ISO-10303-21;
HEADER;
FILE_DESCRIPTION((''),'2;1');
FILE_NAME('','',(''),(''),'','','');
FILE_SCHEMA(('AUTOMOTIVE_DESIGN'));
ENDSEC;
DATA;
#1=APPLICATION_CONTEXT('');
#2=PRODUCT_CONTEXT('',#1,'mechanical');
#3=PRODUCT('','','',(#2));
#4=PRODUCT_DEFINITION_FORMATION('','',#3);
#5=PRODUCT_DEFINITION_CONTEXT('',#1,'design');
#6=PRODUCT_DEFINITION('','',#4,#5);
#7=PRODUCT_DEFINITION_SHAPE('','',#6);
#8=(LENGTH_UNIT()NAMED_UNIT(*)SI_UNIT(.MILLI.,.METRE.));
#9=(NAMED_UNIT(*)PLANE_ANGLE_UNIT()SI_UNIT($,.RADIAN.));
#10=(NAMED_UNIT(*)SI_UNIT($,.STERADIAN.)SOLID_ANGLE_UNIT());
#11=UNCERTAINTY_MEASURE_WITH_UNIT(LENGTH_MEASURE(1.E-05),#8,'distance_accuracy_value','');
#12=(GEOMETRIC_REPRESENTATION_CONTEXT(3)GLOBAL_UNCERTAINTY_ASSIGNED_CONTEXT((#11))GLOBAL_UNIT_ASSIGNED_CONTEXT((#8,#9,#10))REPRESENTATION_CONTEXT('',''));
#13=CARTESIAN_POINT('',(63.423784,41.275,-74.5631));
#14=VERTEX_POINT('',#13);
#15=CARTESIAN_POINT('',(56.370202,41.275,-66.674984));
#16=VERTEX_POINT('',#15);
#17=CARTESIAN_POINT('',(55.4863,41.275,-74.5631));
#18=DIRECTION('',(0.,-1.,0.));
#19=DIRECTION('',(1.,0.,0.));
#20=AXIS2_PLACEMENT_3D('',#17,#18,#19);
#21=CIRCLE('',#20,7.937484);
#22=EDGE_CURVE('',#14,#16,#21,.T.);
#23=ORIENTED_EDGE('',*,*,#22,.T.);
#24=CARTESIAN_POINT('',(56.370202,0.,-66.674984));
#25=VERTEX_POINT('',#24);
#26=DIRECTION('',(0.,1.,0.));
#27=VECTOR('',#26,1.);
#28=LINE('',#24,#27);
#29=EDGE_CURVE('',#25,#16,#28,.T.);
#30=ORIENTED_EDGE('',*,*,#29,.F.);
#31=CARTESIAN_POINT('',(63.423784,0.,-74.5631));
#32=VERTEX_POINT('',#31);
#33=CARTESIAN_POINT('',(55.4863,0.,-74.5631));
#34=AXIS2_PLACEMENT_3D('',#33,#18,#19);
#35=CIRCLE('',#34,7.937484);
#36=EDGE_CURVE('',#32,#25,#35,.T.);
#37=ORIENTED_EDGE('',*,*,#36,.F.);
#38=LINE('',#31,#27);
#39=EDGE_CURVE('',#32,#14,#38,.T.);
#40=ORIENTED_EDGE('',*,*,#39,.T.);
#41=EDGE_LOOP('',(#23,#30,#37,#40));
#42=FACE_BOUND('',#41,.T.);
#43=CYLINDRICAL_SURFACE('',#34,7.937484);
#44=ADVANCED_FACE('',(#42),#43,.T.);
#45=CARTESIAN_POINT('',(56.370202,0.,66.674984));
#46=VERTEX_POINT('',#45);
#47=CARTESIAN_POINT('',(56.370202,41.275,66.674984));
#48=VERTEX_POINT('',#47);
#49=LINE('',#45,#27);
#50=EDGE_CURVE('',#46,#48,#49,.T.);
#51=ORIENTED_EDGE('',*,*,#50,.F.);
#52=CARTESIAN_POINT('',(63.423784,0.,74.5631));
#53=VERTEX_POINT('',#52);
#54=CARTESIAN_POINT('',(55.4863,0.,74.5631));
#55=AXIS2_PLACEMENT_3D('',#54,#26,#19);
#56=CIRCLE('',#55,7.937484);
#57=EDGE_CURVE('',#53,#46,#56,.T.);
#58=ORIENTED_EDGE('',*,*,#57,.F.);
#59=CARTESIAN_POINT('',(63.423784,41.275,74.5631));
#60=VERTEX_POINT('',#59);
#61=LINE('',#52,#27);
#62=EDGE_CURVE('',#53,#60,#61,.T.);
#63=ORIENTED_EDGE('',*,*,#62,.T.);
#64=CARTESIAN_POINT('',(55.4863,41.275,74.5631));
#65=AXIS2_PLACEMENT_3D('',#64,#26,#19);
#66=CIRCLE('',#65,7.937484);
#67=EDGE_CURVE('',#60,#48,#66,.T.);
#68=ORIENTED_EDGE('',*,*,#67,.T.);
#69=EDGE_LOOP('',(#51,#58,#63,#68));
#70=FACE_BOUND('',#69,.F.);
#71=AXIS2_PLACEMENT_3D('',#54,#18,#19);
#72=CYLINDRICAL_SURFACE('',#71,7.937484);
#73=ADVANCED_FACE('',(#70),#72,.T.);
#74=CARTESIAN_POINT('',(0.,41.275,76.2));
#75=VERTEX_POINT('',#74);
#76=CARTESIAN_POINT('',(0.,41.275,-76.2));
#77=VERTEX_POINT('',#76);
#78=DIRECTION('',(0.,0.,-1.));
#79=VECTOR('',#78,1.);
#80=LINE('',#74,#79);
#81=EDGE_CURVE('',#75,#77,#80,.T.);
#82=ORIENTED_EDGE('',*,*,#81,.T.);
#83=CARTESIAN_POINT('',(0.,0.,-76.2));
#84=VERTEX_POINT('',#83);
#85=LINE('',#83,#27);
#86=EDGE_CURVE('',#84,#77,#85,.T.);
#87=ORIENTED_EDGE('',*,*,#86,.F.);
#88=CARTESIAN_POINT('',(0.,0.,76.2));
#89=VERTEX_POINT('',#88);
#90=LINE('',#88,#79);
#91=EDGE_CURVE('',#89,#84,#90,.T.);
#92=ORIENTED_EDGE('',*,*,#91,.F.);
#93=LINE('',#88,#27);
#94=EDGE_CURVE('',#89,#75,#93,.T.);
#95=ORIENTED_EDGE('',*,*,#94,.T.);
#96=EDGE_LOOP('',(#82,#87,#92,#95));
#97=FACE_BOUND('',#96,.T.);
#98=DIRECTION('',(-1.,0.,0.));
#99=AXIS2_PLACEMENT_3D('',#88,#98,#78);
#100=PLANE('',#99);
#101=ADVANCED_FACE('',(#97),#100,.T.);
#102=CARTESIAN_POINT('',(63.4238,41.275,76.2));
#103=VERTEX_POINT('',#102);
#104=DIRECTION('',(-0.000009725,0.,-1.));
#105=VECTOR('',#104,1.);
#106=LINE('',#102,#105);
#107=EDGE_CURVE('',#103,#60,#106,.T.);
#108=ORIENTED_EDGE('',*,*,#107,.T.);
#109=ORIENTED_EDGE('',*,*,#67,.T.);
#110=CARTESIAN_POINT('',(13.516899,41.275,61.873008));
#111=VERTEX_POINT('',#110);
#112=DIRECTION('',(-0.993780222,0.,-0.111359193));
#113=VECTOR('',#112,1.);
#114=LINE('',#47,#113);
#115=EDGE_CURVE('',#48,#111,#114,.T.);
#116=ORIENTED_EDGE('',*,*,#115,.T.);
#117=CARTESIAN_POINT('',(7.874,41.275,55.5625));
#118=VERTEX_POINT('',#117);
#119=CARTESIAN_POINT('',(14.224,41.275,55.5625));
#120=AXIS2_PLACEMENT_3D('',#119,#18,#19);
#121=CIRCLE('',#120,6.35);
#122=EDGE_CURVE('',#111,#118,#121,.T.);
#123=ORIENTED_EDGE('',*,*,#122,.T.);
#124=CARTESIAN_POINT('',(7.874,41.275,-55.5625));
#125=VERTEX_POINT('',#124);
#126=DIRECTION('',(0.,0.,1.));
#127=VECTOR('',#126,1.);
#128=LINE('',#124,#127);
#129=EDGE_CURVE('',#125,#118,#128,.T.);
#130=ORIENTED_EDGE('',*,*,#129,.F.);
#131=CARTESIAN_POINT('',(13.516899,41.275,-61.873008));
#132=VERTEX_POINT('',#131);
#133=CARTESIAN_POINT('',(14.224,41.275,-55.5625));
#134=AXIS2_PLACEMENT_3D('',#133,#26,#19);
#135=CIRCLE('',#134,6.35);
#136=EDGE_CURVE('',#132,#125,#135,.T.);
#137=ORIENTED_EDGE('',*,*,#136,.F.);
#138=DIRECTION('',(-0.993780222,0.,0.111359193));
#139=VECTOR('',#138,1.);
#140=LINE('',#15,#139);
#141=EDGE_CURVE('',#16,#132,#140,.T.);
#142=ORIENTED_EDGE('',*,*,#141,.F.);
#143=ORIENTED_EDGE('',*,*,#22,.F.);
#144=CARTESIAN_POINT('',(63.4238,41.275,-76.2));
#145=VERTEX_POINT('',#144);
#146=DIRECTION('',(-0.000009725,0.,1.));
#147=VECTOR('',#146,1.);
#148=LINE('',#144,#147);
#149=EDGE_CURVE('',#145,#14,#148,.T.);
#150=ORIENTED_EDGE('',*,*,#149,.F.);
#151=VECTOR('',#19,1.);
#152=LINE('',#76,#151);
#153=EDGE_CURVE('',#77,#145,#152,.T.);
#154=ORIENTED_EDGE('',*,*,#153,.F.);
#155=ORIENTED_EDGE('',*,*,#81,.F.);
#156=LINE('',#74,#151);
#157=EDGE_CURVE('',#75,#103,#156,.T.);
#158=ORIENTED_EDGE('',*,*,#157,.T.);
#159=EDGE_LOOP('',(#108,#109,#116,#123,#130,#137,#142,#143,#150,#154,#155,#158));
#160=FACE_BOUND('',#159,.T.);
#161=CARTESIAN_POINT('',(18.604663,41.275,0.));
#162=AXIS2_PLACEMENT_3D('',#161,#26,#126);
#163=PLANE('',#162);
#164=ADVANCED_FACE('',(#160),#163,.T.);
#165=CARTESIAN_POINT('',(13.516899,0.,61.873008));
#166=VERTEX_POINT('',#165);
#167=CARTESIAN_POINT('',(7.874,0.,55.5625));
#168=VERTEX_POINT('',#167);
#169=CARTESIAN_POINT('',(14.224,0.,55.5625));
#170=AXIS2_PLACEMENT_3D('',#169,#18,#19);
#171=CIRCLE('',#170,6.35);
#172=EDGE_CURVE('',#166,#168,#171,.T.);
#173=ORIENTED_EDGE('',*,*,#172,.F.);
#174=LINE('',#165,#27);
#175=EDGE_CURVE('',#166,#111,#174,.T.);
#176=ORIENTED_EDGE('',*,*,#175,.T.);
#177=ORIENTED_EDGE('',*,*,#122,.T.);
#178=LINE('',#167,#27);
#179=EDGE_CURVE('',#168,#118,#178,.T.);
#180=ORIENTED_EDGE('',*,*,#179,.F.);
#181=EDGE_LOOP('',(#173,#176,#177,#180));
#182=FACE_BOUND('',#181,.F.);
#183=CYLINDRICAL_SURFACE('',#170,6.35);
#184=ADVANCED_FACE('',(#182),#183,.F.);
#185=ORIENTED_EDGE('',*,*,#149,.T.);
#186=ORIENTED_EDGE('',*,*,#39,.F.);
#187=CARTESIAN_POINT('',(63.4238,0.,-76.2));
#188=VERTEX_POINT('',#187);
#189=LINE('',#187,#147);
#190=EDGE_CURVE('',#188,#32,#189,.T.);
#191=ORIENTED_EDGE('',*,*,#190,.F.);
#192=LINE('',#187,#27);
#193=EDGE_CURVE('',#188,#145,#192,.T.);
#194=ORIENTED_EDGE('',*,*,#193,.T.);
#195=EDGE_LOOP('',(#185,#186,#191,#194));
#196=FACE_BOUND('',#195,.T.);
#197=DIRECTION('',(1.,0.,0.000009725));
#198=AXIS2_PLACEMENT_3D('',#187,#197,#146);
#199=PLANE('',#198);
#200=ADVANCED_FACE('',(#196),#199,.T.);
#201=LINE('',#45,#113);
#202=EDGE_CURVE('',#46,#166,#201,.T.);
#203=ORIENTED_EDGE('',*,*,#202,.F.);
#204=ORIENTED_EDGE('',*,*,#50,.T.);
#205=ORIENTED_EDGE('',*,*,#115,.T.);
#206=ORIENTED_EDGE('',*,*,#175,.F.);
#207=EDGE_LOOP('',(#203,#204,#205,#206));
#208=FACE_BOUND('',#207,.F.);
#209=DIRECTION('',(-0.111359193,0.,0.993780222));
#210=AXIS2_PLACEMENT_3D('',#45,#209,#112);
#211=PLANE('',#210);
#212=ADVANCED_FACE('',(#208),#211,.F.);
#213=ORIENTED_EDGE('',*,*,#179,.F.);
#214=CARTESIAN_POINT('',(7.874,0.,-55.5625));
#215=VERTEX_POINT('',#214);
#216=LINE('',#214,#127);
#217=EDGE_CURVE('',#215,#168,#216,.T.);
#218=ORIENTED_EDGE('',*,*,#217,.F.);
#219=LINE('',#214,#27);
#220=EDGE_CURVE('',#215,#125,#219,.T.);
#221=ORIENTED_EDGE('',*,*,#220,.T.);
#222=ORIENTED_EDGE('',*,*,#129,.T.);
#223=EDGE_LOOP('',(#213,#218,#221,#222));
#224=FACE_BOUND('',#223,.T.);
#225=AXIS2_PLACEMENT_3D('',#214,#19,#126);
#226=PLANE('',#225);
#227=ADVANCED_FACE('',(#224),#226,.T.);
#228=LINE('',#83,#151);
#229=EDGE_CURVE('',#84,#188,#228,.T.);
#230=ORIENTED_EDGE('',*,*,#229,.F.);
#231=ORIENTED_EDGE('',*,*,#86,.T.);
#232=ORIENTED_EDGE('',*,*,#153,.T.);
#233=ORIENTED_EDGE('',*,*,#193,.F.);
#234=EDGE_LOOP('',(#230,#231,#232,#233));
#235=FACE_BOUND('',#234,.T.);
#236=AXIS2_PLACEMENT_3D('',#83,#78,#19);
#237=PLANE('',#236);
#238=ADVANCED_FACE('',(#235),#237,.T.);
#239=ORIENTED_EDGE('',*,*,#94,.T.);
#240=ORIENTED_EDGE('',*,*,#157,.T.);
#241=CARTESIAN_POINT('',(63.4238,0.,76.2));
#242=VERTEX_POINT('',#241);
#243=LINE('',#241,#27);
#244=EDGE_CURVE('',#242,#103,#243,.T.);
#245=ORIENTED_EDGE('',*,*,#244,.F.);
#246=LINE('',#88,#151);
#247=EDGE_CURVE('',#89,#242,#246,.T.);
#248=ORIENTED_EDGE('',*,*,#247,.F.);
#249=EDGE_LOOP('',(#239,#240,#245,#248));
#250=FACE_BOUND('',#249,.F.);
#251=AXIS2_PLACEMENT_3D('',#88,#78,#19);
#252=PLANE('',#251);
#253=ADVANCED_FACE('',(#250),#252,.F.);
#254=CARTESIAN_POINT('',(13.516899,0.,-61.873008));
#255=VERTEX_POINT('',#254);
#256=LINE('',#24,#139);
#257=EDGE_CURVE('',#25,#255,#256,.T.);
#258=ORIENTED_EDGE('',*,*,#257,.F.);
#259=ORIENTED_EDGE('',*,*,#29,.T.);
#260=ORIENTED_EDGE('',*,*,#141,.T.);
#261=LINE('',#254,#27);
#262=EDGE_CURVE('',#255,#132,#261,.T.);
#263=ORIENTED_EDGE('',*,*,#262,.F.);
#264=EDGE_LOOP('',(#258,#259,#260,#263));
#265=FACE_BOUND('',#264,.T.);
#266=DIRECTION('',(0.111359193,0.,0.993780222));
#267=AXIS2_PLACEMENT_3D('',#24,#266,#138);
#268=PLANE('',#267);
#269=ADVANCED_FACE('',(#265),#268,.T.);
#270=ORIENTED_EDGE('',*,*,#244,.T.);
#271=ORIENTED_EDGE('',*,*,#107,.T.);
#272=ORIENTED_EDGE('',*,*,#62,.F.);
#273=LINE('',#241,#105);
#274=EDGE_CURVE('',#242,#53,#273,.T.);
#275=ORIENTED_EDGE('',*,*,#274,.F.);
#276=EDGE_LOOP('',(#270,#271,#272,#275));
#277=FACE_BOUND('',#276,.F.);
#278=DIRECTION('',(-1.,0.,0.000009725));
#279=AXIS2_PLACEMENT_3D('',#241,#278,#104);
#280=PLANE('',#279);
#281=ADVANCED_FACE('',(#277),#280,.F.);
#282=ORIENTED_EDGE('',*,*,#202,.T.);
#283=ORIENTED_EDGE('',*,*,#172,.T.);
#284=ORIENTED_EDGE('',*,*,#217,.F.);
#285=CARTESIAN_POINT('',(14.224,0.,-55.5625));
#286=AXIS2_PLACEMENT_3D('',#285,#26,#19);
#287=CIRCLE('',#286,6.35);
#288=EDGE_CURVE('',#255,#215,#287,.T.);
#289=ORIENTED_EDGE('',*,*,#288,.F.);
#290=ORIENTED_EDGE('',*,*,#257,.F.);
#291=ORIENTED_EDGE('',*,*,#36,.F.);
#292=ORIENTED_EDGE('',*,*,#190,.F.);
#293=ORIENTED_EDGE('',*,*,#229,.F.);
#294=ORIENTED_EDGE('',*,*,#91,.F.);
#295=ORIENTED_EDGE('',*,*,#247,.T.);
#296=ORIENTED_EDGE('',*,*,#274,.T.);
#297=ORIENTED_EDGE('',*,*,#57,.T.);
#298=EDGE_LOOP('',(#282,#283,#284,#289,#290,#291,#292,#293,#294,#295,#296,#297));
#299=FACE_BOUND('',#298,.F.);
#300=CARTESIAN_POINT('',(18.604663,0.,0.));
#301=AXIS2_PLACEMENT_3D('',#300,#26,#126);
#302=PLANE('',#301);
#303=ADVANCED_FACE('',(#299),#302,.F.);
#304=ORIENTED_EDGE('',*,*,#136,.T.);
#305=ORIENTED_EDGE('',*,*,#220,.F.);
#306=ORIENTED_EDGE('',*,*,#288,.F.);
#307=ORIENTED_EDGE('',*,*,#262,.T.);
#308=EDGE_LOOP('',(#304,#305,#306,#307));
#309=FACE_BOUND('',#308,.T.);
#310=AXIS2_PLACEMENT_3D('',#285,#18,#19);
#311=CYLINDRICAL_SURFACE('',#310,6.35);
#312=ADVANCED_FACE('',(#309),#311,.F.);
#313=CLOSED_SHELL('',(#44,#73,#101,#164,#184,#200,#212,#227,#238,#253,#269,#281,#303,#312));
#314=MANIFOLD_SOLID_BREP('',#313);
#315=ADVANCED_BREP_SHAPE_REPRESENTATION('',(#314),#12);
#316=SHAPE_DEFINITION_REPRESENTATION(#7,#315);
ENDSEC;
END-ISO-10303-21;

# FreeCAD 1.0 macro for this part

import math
import FreeCAD as App
import Part
import Sketcher

V = App.Vector
Q = App.Units.Quantity

doc = App.newDocument("Part")
body = doc.addObject("PartDesign::Body", "Body")

# Sketch on XZ plane
sketch1 = body.newObject("Sketcher::SketchObject", "Sketch")
sketch1.AttachmentSupport = (doc.getObject("XZ_Plane"), [""])
sketch1.MapMode = "FlatFace"
sketch1.addGeometry([
    Part.LineSegment(V(63.4, 76.2, 0), V(0, 76.2, 0)),  # 0
    Part.LineSegment(V(0, 76.2, 0), V(0, -76.2, 0)),  # 1
    Part.LineSegment(V(0, -76.2, 0), V(63.4, -76.2, 0)),  # 2
    Part.LineSegment(V(63.4, -76.2, 0), V(63.4, -74.6, 0)),  # 3
    Part.ArcOfCircle(Part.Circle(V(55.5, -74.6, 0), V(0, 0, 1), 7.9), math.radians(0), math.radians(84)),  # 4
    Part.LineSegment(V(56.4, -66.7, 0), V(13.5, -61.9, 0)),  # 5
    Part.ArcOfCircle(Part.Circle(V(14.2, -55.6, 0), V(0, 0, 1), 6.3), math.radians(180), math.radians(264)),  # 6
    Part.LineSegment(V(7.9, -55.6, 0), V(7.9, 55.6, 0)),  # 7
    Part.ArcOfCircle(Part.Circle(V(14.2, 55.6, 0), V(0, 0, 1), 6.3), math.radians(96), math.radians(180)),  # 8
    Part.LineSegment(V(13.5, 61.9, 0), V(56.4, 66.7, 0)),  # 9
    Part.ArcOfCircle(Part.Circle(V(55.5, 74.6, 0), V(0, 0, 1), 7.9), math.radians(-84), math.radians(0)),  # 10
    Part.LineSegment(V(63.4, 74.6, 0), V(63.4, 76.2, 0)),  # 11
], False)
sketch1.addConstraint([
    Sketcher.Constraint("Coincident", 0, 2, 1, 1),
    Sketcher.Constraint("Coincident", 1, 2, 2, 1),
    Sketcher.Constraint("Coincident", 2, 2, 3, 1),
    Sketcher.Constraint("Tangent", 3, 2, 4, 1),
    Sketcher.Constraint("Tangent", 4, 2, 5, 1),
    Sketcher.Constraint("Tangent", 5, 2, 6, 2),
    Sketcher.Constraint("Tangent", 6, 1, 7, 1),
    Sketcher.Constraint("Tangent", 7, 2, 8, 2),
    Sketcher.Constraint("Tangent", 8, 1, 9, 1),
    Sketcher.Constraint("Tangent", 9, 2, 10, 1),
    Sketcher.Constraint("Tangent", 10, 2, 11, 1),
    Sketcher.Constraint("Coincident", 11, 2, 0, 1),
    Sketcher.Constraint("Horizontal", 0),
    Sketcher.Constraint("Vertical", 1),
    Sketcher.Constraint("Horizontal", 2),
    Sketcher.Constraint("Vertical", 3),
    Sketcher.Constraint("Vertical", 7),
    Sketcher.Constraint("Vertical", 11),
    Sketcher.Constraint("Equal", 6, 8),
    Sketcher.Constraint("Equal", 4, 10),
    Sketcher.Constraint("Symmetric", 0, 2, 1, 2, -1, 1),
    Sketcher.Constraint("Symmetric", 4, 3, 10, 3, -1),
    Sketcher.Constraint("Vertical", 5, 2, 8, 1),
    Sketcher.Constraint("DistanceY", 1, 2, 1, 1, Q("6 in")),
    Sketcher.Constraint("Radius", 6, Q("0.25 in")),
    Sketcher.Constraint("Radius", 4, Q("0.3125 in")),
    Sketcher.Constraint("DistanceX", 0, 2, 0, 1, Q("2.497 in")),
    Sketcher.Constraint("DistanceY", 7, 1, 7, 2, Q("4.375 in")),
    Sketcher.Constraint("DistanceX", -1, 1, 6, 3, Q("0.56 in")),
    Sketcher.Constraint("DistanceY", 4, 2, -1, 1, Q("2.625 in")),
])
pad1 = body.newObject("PartDesign::Pad", "Pad")
pad1.Profile = sketch1
pad1.Length = Q("1.625 in")
pad1.Reversed = True

doc.recompute()
